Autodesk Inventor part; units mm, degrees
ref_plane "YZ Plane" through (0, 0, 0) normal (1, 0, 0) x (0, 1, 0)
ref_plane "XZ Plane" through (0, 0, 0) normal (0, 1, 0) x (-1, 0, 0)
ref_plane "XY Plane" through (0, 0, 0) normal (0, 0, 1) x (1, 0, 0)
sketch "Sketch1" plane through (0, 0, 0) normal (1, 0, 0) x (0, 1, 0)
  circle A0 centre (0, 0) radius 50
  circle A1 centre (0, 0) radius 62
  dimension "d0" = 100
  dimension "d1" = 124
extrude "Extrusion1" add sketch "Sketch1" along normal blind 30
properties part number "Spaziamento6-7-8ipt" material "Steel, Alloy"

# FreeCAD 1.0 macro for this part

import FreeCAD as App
import Part
import Sketcher

V = App.Vector
Q = App.Units.Quantity

doc = App.newDocument("Part")
body = doc.addObject("PartDesign::Body", "Body")

# Sketch on YZ plane
sketch1 = body.newObject("Sketcher::SketchObject", "Sketch")
sketch1.AttachmentSupport = (doc.getObject("YZ_Plane"), [""])
sketch1.MapMode = "FlatFace"
sketch1.addGeometry([
    Part.Circle(V(0, 0, 0), V(0, 0, 1), 62),
    Part.Circle(V(0, 0, 0), V(0, 0, 1), 50),
], False)
sketch1.addConstraint([
    Sketcher.Constraint("Coincident", 0, 3, -1, 1),
    Sketcher.Constraint("Coincident", 1, 3, -1, 1),
    Sketcher.Constraint("Diameter", 1, Q("3.937 in")),
    Sketcher.Constraint("Diameter", 0, Q("4.8819 in")),
])
pad1 = body.newObject("PartDesign::Pad", "Pad")
pad1.Profile = sketch1
pad1.Length = Q("1.1811024 in")

doc.recompute()
